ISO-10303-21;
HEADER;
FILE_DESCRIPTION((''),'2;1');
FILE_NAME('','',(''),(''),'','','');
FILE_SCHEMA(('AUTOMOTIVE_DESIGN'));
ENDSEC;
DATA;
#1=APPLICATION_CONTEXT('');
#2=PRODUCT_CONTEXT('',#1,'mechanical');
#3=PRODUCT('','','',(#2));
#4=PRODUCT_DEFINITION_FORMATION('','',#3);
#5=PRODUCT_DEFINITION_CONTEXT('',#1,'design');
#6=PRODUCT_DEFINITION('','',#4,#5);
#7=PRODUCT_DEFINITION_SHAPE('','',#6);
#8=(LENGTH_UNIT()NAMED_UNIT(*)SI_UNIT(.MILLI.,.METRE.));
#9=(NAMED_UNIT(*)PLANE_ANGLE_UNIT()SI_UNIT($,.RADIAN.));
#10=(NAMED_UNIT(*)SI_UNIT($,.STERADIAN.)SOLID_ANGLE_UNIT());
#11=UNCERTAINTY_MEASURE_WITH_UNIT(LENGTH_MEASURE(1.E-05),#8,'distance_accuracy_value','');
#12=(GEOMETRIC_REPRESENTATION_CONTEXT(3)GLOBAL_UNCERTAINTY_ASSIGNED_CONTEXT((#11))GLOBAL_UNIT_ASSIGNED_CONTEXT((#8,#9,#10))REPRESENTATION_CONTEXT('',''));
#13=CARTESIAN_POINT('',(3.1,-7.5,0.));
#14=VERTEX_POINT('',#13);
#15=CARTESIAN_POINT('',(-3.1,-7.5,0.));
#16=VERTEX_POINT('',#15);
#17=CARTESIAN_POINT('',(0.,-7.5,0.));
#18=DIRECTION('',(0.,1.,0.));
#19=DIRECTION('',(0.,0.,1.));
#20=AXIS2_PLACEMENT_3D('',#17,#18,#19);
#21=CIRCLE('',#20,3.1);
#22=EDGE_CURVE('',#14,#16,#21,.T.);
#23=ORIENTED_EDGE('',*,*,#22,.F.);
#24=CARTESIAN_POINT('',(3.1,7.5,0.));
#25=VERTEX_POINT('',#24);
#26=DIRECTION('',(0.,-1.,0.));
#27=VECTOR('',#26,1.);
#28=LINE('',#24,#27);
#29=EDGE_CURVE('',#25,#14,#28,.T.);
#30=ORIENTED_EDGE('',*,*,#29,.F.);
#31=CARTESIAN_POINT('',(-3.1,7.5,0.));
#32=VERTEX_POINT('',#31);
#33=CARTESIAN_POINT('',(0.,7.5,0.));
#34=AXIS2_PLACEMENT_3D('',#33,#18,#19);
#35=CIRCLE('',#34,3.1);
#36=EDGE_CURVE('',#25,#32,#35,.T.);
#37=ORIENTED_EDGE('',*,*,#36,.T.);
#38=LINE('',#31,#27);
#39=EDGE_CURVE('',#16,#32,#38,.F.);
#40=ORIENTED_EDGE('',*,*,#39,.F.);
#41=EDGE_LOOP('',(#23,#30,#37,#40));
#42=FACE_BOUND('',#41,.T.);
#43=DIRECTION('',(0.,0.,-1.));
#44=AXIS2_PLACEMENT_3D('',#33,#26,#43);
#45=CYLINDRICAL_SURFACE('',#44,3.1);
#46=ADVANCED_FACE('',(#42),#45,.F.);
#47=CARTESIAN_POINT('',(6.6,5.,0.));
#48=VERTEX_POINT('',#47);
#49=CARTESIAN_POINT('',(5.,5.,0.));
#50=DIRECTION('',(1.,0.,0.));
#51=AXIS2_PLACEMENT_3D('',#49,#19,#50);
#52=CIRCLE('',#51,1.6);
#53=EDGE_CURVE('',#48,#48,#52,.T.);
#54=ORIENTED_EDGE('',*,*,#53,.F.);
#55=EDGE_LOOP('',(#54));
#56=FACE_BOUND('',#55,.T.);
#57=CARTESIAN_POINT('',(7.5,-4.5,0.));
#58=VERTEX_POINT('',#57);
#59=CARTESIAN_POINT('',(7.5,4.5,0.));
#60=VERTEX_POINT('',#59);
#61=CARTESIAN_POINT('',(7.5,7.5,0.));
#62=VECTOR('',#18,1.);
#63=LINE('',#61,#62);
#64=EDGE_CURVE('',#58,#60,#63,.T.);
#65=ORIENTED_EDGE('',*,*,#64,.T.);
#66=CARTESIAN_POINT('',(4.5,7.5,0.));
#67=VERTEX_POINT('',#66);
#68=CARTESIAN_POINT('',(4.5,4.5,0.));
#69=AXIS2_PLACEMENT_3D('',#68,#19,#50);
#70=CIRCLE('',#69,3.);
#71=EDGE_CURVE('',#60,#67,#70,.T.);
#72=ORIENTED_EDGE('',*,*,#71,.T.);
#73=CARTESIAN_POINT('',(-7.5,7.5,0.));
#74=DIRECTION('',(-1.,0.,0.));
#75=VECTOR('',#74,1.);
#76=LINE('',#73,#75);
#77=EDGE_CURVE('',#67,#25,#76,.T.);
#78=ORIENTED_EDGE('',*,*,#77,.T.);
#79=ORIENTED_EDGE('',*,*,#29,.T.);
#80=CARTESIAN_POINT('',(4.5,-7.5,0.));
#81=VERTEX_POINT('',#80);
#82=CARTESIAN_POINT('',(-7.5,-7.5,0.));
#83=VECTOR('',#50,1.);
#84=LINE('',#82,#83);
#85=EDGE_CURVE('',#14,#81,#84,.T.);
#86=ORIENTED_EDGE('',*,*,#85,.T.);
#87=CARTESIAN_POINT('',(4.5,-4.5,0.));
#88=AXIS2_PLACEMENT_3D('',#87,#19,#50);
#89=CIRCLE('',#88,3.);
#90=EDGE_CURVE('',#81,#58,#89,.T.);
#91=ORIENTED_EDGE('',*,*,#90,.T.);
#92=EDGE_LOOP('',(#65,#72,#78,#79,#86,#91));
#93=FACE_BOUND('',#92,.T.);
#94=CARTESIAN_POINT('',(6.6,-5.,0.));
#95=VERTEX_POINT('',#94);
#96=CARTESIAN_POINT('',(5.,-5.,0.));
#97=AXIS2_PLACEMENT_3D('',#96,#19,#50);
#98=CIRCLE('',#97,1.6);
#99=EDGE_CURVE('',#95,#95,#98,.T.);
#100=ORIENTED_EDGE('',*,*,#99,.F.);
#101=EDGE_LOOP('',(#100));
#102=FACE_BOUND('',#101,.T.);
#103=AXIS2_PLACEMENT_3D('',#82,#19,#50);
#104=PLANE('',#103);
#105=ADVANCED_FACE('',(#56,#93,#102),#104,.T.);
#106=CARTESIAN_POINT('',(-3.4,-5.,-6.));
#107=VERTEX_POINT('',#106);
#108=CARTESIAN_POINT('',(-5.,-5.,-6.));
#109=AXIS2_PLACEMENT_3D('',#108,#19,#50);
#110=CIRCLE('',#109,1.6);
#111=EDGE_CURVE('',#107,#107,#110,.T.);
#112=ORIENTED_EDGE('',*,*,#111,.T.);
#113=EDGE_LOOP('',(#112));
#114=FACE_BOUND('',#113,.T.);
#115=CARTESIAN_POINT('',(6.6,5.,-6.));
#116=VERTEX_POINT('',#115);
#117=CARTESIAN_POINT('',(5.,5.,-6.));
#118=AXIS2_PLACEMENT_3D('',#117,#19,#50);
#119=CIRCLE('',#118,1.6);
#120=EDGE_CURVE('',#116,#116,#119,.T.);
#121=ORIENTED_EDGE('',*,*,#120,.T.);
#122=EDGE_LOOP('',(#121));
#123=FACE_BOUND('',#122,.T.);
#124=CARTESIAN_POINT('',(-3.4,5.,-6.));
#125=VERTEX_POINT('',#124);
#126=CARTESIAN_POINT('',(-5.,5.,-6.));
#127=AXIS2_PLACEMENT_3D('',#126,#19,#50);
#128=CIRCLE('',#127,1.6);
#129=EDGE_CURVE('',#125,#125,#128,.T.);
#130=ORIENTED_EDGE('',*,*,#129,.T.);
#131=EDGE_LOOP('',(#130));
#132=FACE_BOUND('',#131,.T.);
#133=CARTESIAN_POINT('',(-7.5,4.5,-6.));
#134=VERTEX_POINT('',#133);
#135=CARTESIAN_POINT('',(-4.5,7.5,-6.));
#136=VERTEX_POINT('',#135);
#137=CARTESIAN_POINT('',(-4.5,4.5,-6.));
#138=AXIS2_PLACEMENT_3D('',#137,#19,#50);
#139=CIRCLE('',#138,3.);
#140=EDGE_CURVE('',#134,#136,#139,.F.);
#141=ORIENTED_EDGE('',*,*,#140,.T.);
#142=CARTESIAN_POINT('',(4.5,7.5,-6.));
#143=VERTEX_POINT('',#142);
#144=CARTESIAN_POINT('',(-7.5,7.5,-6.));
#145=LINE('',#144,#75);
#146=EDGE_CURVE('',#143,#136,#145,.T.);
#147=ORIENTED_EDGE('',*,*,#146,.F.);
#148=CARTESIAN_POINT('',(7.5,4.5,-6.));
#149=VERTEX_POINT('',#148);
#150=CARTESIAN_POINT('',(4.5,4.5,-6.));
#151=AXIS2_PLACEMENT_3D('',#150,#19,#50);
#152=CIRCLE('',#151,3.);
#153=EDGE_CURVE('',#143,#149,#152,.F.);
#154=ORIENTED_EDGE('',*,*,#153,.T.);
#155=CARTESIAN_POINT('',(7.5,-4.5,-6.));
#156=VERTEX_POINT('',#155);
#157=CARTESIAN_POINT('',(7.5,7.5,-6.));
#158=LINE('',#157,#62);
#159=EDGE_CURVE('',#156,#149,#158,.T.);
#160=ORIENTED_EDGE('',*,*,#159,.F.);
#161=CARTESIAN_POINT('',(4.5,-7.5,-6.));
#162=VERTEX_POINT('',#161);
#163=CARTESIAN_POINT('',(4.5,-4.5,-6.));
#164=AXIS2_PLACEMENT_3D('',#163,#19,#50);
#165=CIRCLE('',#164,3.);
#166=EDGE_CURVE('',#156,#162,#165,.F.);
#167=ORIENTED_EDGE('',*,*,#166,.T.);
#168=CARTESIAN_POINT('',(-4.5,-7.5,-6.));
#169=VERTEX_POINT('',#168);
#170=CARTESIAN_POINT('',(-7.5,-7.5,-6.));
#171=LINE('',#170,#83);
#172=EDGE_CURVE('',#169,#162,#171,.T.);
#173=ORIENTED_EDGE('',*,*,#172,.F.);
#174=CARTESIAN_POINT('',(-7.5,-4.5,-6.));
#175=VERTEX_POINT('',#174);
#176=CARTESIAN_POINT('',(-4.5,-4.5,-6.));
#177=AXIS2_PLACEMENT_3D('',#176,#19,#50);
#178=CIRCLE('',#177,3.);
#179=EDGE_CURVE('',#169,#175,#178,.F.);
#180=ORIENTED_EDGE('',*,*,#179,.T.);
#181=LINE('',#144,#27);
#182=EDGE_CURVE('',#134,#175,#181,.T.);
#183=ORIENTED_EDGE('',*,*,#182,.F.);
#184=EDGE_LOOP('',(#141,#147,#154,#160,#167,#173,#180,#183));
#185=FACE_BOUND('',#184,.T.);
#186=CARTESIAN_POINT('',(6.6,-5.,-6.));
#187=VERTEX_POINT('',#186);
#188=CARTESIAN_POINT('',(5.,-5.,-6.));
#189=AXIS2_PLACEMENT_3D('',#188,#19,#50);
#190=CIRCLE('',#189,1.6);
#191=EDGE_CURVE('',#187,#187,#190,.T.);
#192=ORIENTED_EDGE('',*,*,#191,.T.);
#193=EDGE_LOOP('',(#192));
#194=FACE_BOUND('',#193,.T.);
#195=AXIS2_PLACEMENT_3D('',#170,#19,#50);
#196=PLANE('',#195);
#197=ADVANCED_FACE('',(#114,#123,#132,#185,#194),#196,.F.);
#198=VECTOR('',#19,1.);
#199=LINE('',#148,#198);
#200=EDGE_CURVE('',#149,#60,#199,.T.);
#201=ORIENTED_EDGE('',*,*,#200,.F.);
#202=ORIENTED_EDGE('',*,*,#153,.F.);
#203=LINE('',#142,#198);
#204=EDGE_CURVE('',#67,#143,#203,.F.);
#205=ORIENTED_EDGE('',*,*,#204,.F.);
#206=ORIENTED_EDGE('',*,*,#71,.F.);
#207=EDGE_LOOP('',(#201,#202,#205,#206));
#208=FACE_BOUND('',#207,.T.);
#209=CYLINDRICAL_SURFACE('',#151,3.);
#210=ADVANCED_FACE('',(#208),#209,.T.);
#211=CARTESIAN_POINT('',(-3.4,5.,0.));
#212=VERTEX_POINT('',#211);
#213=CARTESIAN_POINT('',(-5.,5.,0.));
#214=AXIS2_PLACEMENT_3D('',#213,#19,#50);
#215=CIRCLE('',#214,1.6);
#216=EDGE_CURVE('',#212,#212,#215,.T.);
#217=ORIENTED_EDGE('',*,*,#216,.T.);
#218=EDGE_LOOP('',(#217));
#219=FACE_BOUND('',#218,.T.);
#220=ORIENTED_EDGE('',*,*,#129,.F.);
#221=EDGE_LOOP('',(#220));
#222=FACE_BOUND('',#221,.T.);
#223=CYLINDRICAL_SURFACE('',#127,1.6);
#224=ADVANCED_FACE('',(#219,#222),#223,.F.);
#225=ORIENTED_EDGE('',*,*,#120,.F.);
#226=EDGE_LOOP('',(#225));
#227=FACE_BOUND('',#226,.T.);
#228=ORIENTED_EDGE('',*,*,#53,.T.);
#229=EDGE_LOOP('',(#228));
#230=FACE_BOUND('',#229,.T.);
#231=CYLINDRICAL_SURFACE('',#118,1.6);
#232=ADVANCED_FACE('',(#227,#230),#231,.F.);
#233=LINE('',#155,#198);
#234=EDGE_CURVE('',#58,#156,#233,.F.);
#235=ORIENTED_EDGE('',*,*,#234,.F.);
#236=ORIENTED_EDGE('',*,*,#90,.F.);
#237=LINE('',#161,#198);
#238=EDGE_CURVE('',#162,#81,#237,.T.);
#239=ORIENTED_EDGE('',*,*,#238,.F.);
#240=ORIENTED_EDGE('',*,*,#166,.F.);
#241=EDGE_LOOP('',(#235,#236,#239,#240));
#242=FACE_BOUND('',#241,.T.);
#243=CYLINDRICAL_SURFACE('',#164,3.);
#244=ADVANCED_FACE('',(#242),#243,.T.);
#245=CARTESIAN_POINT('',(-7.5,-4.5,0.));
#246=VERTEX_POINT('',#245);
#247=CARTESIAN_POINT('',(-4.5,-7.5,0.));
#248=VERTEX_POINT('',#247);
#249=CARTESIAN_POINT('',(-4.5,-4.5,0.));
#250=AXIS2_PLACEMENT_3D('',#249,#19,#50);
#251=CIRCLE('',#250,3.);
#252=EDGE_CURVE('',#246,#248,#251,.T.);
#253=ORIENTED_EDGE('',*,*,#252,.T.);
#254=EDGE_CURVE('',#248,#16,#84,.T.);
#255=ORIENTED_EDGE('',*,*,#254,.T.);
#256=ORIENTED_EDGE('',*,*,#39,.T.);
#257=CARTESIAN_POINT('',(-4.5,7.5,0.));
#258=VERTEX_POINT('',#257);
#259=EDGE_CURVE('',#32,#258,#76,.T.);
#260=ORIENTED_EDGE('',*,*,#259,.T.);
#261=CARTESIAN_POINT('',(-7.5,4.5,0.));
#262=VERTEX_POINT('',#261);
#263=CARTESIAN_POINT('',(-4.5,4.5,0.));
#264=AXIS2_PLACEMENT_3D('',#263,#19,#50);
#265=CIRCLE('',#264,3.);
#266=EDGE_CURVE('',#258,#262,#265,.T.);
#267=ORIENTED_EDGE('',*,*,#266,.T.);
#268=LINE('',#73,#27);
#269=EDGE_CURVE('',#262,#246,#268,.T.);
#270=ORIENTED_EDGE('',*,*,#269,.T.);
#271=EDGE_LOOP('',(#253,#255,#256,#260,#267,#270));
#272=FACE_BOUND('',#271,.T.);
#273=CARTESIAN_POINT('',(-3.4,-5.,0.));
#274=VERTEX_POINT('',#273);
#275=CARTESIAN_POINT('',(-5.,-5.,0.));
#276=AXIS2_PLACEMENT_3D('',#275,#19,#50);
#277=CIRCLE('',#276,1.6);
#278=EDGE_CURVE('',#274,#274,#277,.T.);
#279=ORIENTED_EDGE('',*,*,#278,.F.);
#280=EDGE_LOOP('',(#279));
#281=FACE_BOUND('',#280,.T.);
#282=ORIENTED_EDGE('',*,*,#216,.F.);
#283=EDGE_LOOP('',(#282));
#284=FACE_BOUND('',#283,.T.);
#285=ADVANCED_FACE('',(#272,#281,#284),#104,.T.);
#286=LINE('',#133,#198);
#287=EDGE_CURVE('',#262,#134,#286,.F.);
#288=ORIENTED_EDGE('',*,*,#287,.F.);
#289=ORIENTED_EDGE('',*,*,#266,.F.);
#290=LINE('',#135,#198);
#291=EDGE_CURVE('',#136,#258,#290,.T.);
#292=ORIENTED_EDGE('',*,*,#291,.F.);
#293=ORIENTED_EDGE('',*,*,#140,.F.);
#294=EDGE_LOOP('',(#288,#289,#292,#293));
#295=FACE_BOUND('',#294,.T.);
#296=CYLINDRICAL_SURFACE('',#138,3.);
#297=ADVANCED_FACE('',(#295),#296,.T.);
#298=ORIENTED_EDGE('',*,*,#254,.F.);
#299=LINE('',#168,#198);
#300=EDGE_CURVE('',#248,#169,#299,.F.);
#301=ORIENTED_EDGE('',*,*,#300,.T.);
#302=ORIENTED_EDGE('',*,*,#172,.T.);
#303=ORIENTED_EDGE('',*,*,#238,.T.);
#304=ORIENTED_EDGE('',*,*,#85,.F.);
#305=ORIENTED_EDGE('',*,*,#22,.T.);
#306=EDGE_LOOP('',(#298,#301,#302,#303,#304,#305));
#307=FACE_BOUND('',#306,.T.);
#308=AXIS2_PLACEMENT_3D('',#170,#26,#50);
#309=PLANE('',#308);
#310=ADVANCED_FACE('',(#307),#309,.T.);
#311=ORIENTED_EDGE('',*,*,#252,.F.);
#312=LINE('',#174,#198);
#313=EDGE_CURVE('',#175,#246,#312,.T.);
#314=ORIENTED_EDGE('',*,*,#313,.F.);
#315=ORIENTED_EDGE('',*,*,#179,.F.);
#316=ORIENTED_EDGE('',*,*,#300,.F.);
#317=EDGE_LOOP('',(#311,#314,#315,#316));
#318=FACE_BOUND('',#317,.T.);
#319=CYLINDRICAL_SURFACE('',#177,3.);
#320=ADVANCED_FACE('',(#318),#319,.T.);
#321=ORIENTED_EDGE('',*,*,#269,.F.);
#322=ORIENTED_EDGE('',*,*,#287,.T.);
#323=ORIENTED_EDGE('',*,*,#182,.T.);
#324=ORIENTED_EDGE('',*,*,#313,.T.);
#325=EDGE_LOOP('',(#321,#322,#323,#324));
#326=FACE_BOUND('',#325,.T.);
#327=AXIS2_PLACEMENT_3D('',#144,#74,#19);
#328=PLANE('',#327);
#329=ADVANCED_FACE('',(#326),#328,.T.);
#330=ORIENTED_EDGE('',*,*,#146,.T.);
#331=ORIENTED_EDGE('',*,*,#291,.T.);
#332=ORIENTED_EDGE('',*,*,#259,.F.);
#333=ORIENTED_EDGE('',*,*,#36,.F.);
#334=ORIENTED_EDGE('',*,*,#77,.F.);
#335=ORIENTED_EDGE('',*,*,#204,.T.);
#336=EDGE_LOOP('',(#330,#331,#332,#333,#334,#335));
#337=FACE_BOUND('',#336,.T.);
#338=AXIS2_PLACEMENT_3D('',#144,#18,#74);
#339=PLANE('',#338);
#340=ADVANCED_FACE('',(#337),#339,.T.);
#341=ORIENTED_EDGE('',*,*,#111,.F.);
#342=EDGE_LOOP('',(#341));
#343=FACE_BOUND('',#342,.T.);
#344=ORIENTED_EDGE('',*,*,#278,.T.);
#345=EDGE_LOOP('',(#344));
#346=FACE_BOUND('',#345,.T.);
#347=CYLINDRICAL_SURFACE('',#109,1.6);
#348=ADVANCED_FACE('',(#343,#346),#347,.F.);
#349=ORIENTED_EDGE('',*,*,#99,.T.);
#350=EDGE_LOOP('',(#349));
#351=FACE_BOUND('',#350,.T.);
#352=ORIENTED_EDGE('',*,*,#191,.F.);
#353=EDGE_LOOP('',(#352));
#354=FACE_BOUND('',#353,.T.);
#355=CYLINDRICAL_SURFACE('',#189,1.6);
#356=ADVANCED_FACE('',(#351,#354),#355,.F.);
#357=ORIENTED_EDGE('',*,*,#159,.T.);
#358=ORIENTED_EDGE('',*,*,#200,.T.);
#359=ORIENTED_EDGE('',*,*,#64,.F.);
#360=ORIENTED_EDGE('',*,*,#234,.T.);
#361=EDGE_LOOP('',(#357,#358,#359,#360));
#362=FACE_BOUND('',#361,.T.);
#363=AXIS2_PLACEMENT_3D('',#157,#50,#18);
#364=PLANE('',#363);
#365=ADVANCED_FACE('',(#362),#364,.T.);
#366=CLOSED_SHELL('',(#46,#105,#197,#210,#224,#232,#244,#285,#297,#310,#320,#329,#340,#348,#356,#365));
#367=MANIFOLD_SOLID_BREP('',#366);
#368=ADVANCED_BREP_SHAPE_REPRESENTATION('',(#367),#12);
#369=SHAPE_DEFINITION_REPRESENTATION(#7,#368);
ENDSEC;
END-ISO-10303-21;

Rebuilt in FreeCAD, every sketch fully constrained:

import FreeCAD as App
import Part
import Sketcher


def edges_at(feature, points):
    """Names of the edges that pass closest to the given points."""
    edges = feature.Shape.Edges
    near = lambda p: min(range(len(edges)), key=lambda i: edges[i].distToShape(Part.Vertex(*p))[0])
    return sorted({f"Edge{near(p) + 1}" for p in points})

doc = App.newDocument("Part")
body = doc.addObject("PartDesign::Body", "Body")

# Sketch on XY plane
sketch1 = body.newObject("Sketcher::SketchObject", "Sketch")
sketch1.AttachmentSupport = (doc.getObject("XY_Plane"), [""])
sketch1.MapMode = "FlatFace"
sketch1.addGeometry(Part.LineSegment(App.Vector(-7.5, 7.5, 0), App.Vector(-7.5, -7.5, 0)), False)
sketch1.addGeometry(Part.LineSegment(App.Vector(-7.5, -7.5, 0), App.Vector(7.5, -7.5, 0)), False)
sketch1.addGeometry(Part.LineSegment(App.Vector(7.5, -7.5, 0), App.Vector(7.5, 7.5, 0)), False)
sketch1.addGeometry(Part.LineSegment(App.Vector(7.5, 7.5, 0), App.Vector(-7.5, 7.5, 0)), False)
sketch1.addGeometry(Part.Circle(App.Vector(-5, -5, 0), App.Vector(0, 0, 1), 1.6), False)
sketch1.addGeometry(Part.Circle(App.Vector(5, -5, 0), App.Vector(0, 0, 1), 1.6), False)
sketch1.addGeometry(Part.Circle(App.Vector(-5, 5, 0), App.Vector(0, 0, 1), 1.6), False)
sketch1.addGeometry(Part.Circle(App.Vector(5, 5, 0), App.Vector(0, 0, 1), 1.6), False)
sketch1.addConstraint(Sketcher.Constraint("Coincident", 0, 2, 1, 1))
sketch1.addConstraint(Sketcher.Constraint("Coincident", 1, 2, 2, 1))
sketch1.addConstraint(Sketcher.Constraint("Coincident", 2, 2, 3, 1))
sketch1.addConstraint(Sketcher.Constraint("Coincident", 3, 2, 0, 1))
sketch1.addConstraint(Sketcher.Constraint("Vertical", 0))
sketch1.addConstraint(Sketcher.Constraint("Horizontal", 1))
sketch1.addConstraint(Sketcher.Constraint("Vertical", 2))
sketch1.addConstraint(Sketcher.Constraint("Horizontal", 3))
sketch1.addConstraint(Sketcher.Constraint("Equal", 4, 5))
sketch1.addConstraint(Sketcher.Constraint("Equal", 5, 6))
sketch1.addConstraint(Sketcher.Constraint("Equal", 6, 7))
sketch1.addConstraint(Sketcher.Constraint("Symmetric", 5, 3, 6, 3, -1, 1))
sketch1.addConstraint(Sketcher.Constraint("Symmetric", 4, 3, 7, 3, -1, 1))
sketch1.addConstraint(Sketcher.Constraint("Symmetric", 0, 2, 2, 2, -1, 1))
sketch1.addConstraint(Sketcher.Constraint("Symmetric", 4, 3, 5, 3, -2))
sketch1.addConstraint(Sketcher.Constraint("Equal", 3, 0))
sketch1.addConstraint(Sketcher.Constraint("Diameter", 4, 3.2))
sketch1.addConstraint(Sketcher.Constraint("DistanceX", 1, 1, 1, 2, 15.0))
sketch1.addConstraint(Sketcher.Constraint("DistanceX", 4, 3, -1, 1, 5.0))
sketch1.addConstraint(Sketcher.Constraint("DistanceY", 4, 3, -1, 1, 5.0))
pad1 = body.newObject("PartDesign::Pad", "Pad")
pad1.Profile = sketch1
pad1.Length = 6
pad1.Reversed = True

# Sketch on XZ plane
sketch2 = body.newObject("Sketcher::SketchObject", "Sketch001")
sketch2.AttachmentSupport = (doc.getObject("XZ_Plane"), [""])
sketch2.MapMode = "FlatFace"
sketch2.addGeometry(Part.Circle(App.Vector(0, 0, 0), App.Vector(0, 0, 1), 3.1), False)
sketch2.addConstraint(Sketcher.Constraint("Coincident", 0, 3, -1, 1))
sketch2.addConstraint(Sketcher.Constraint("Diameter", 0, 6.2))
pocket1 = body.newObject("PartDesign::Pocket", "Pocket")
pocket1.Profile = sketch2
pocket1.Type = "ThroughAll"
pocket1.Midplane = True
doc.recompute()

fillet = body.newObject("PartDesign::Fillet", "Fillet")
fillet.Base = (pocket1, edges_at(pocket1, [
    (-7.5, 7.5, -3),
    (7.5, 7.5, -3),
    (7.5, -7.5, -3),
    (-7.5, -7.5, -3),
]))
fillet.Radius = 3

doc.recompute()
